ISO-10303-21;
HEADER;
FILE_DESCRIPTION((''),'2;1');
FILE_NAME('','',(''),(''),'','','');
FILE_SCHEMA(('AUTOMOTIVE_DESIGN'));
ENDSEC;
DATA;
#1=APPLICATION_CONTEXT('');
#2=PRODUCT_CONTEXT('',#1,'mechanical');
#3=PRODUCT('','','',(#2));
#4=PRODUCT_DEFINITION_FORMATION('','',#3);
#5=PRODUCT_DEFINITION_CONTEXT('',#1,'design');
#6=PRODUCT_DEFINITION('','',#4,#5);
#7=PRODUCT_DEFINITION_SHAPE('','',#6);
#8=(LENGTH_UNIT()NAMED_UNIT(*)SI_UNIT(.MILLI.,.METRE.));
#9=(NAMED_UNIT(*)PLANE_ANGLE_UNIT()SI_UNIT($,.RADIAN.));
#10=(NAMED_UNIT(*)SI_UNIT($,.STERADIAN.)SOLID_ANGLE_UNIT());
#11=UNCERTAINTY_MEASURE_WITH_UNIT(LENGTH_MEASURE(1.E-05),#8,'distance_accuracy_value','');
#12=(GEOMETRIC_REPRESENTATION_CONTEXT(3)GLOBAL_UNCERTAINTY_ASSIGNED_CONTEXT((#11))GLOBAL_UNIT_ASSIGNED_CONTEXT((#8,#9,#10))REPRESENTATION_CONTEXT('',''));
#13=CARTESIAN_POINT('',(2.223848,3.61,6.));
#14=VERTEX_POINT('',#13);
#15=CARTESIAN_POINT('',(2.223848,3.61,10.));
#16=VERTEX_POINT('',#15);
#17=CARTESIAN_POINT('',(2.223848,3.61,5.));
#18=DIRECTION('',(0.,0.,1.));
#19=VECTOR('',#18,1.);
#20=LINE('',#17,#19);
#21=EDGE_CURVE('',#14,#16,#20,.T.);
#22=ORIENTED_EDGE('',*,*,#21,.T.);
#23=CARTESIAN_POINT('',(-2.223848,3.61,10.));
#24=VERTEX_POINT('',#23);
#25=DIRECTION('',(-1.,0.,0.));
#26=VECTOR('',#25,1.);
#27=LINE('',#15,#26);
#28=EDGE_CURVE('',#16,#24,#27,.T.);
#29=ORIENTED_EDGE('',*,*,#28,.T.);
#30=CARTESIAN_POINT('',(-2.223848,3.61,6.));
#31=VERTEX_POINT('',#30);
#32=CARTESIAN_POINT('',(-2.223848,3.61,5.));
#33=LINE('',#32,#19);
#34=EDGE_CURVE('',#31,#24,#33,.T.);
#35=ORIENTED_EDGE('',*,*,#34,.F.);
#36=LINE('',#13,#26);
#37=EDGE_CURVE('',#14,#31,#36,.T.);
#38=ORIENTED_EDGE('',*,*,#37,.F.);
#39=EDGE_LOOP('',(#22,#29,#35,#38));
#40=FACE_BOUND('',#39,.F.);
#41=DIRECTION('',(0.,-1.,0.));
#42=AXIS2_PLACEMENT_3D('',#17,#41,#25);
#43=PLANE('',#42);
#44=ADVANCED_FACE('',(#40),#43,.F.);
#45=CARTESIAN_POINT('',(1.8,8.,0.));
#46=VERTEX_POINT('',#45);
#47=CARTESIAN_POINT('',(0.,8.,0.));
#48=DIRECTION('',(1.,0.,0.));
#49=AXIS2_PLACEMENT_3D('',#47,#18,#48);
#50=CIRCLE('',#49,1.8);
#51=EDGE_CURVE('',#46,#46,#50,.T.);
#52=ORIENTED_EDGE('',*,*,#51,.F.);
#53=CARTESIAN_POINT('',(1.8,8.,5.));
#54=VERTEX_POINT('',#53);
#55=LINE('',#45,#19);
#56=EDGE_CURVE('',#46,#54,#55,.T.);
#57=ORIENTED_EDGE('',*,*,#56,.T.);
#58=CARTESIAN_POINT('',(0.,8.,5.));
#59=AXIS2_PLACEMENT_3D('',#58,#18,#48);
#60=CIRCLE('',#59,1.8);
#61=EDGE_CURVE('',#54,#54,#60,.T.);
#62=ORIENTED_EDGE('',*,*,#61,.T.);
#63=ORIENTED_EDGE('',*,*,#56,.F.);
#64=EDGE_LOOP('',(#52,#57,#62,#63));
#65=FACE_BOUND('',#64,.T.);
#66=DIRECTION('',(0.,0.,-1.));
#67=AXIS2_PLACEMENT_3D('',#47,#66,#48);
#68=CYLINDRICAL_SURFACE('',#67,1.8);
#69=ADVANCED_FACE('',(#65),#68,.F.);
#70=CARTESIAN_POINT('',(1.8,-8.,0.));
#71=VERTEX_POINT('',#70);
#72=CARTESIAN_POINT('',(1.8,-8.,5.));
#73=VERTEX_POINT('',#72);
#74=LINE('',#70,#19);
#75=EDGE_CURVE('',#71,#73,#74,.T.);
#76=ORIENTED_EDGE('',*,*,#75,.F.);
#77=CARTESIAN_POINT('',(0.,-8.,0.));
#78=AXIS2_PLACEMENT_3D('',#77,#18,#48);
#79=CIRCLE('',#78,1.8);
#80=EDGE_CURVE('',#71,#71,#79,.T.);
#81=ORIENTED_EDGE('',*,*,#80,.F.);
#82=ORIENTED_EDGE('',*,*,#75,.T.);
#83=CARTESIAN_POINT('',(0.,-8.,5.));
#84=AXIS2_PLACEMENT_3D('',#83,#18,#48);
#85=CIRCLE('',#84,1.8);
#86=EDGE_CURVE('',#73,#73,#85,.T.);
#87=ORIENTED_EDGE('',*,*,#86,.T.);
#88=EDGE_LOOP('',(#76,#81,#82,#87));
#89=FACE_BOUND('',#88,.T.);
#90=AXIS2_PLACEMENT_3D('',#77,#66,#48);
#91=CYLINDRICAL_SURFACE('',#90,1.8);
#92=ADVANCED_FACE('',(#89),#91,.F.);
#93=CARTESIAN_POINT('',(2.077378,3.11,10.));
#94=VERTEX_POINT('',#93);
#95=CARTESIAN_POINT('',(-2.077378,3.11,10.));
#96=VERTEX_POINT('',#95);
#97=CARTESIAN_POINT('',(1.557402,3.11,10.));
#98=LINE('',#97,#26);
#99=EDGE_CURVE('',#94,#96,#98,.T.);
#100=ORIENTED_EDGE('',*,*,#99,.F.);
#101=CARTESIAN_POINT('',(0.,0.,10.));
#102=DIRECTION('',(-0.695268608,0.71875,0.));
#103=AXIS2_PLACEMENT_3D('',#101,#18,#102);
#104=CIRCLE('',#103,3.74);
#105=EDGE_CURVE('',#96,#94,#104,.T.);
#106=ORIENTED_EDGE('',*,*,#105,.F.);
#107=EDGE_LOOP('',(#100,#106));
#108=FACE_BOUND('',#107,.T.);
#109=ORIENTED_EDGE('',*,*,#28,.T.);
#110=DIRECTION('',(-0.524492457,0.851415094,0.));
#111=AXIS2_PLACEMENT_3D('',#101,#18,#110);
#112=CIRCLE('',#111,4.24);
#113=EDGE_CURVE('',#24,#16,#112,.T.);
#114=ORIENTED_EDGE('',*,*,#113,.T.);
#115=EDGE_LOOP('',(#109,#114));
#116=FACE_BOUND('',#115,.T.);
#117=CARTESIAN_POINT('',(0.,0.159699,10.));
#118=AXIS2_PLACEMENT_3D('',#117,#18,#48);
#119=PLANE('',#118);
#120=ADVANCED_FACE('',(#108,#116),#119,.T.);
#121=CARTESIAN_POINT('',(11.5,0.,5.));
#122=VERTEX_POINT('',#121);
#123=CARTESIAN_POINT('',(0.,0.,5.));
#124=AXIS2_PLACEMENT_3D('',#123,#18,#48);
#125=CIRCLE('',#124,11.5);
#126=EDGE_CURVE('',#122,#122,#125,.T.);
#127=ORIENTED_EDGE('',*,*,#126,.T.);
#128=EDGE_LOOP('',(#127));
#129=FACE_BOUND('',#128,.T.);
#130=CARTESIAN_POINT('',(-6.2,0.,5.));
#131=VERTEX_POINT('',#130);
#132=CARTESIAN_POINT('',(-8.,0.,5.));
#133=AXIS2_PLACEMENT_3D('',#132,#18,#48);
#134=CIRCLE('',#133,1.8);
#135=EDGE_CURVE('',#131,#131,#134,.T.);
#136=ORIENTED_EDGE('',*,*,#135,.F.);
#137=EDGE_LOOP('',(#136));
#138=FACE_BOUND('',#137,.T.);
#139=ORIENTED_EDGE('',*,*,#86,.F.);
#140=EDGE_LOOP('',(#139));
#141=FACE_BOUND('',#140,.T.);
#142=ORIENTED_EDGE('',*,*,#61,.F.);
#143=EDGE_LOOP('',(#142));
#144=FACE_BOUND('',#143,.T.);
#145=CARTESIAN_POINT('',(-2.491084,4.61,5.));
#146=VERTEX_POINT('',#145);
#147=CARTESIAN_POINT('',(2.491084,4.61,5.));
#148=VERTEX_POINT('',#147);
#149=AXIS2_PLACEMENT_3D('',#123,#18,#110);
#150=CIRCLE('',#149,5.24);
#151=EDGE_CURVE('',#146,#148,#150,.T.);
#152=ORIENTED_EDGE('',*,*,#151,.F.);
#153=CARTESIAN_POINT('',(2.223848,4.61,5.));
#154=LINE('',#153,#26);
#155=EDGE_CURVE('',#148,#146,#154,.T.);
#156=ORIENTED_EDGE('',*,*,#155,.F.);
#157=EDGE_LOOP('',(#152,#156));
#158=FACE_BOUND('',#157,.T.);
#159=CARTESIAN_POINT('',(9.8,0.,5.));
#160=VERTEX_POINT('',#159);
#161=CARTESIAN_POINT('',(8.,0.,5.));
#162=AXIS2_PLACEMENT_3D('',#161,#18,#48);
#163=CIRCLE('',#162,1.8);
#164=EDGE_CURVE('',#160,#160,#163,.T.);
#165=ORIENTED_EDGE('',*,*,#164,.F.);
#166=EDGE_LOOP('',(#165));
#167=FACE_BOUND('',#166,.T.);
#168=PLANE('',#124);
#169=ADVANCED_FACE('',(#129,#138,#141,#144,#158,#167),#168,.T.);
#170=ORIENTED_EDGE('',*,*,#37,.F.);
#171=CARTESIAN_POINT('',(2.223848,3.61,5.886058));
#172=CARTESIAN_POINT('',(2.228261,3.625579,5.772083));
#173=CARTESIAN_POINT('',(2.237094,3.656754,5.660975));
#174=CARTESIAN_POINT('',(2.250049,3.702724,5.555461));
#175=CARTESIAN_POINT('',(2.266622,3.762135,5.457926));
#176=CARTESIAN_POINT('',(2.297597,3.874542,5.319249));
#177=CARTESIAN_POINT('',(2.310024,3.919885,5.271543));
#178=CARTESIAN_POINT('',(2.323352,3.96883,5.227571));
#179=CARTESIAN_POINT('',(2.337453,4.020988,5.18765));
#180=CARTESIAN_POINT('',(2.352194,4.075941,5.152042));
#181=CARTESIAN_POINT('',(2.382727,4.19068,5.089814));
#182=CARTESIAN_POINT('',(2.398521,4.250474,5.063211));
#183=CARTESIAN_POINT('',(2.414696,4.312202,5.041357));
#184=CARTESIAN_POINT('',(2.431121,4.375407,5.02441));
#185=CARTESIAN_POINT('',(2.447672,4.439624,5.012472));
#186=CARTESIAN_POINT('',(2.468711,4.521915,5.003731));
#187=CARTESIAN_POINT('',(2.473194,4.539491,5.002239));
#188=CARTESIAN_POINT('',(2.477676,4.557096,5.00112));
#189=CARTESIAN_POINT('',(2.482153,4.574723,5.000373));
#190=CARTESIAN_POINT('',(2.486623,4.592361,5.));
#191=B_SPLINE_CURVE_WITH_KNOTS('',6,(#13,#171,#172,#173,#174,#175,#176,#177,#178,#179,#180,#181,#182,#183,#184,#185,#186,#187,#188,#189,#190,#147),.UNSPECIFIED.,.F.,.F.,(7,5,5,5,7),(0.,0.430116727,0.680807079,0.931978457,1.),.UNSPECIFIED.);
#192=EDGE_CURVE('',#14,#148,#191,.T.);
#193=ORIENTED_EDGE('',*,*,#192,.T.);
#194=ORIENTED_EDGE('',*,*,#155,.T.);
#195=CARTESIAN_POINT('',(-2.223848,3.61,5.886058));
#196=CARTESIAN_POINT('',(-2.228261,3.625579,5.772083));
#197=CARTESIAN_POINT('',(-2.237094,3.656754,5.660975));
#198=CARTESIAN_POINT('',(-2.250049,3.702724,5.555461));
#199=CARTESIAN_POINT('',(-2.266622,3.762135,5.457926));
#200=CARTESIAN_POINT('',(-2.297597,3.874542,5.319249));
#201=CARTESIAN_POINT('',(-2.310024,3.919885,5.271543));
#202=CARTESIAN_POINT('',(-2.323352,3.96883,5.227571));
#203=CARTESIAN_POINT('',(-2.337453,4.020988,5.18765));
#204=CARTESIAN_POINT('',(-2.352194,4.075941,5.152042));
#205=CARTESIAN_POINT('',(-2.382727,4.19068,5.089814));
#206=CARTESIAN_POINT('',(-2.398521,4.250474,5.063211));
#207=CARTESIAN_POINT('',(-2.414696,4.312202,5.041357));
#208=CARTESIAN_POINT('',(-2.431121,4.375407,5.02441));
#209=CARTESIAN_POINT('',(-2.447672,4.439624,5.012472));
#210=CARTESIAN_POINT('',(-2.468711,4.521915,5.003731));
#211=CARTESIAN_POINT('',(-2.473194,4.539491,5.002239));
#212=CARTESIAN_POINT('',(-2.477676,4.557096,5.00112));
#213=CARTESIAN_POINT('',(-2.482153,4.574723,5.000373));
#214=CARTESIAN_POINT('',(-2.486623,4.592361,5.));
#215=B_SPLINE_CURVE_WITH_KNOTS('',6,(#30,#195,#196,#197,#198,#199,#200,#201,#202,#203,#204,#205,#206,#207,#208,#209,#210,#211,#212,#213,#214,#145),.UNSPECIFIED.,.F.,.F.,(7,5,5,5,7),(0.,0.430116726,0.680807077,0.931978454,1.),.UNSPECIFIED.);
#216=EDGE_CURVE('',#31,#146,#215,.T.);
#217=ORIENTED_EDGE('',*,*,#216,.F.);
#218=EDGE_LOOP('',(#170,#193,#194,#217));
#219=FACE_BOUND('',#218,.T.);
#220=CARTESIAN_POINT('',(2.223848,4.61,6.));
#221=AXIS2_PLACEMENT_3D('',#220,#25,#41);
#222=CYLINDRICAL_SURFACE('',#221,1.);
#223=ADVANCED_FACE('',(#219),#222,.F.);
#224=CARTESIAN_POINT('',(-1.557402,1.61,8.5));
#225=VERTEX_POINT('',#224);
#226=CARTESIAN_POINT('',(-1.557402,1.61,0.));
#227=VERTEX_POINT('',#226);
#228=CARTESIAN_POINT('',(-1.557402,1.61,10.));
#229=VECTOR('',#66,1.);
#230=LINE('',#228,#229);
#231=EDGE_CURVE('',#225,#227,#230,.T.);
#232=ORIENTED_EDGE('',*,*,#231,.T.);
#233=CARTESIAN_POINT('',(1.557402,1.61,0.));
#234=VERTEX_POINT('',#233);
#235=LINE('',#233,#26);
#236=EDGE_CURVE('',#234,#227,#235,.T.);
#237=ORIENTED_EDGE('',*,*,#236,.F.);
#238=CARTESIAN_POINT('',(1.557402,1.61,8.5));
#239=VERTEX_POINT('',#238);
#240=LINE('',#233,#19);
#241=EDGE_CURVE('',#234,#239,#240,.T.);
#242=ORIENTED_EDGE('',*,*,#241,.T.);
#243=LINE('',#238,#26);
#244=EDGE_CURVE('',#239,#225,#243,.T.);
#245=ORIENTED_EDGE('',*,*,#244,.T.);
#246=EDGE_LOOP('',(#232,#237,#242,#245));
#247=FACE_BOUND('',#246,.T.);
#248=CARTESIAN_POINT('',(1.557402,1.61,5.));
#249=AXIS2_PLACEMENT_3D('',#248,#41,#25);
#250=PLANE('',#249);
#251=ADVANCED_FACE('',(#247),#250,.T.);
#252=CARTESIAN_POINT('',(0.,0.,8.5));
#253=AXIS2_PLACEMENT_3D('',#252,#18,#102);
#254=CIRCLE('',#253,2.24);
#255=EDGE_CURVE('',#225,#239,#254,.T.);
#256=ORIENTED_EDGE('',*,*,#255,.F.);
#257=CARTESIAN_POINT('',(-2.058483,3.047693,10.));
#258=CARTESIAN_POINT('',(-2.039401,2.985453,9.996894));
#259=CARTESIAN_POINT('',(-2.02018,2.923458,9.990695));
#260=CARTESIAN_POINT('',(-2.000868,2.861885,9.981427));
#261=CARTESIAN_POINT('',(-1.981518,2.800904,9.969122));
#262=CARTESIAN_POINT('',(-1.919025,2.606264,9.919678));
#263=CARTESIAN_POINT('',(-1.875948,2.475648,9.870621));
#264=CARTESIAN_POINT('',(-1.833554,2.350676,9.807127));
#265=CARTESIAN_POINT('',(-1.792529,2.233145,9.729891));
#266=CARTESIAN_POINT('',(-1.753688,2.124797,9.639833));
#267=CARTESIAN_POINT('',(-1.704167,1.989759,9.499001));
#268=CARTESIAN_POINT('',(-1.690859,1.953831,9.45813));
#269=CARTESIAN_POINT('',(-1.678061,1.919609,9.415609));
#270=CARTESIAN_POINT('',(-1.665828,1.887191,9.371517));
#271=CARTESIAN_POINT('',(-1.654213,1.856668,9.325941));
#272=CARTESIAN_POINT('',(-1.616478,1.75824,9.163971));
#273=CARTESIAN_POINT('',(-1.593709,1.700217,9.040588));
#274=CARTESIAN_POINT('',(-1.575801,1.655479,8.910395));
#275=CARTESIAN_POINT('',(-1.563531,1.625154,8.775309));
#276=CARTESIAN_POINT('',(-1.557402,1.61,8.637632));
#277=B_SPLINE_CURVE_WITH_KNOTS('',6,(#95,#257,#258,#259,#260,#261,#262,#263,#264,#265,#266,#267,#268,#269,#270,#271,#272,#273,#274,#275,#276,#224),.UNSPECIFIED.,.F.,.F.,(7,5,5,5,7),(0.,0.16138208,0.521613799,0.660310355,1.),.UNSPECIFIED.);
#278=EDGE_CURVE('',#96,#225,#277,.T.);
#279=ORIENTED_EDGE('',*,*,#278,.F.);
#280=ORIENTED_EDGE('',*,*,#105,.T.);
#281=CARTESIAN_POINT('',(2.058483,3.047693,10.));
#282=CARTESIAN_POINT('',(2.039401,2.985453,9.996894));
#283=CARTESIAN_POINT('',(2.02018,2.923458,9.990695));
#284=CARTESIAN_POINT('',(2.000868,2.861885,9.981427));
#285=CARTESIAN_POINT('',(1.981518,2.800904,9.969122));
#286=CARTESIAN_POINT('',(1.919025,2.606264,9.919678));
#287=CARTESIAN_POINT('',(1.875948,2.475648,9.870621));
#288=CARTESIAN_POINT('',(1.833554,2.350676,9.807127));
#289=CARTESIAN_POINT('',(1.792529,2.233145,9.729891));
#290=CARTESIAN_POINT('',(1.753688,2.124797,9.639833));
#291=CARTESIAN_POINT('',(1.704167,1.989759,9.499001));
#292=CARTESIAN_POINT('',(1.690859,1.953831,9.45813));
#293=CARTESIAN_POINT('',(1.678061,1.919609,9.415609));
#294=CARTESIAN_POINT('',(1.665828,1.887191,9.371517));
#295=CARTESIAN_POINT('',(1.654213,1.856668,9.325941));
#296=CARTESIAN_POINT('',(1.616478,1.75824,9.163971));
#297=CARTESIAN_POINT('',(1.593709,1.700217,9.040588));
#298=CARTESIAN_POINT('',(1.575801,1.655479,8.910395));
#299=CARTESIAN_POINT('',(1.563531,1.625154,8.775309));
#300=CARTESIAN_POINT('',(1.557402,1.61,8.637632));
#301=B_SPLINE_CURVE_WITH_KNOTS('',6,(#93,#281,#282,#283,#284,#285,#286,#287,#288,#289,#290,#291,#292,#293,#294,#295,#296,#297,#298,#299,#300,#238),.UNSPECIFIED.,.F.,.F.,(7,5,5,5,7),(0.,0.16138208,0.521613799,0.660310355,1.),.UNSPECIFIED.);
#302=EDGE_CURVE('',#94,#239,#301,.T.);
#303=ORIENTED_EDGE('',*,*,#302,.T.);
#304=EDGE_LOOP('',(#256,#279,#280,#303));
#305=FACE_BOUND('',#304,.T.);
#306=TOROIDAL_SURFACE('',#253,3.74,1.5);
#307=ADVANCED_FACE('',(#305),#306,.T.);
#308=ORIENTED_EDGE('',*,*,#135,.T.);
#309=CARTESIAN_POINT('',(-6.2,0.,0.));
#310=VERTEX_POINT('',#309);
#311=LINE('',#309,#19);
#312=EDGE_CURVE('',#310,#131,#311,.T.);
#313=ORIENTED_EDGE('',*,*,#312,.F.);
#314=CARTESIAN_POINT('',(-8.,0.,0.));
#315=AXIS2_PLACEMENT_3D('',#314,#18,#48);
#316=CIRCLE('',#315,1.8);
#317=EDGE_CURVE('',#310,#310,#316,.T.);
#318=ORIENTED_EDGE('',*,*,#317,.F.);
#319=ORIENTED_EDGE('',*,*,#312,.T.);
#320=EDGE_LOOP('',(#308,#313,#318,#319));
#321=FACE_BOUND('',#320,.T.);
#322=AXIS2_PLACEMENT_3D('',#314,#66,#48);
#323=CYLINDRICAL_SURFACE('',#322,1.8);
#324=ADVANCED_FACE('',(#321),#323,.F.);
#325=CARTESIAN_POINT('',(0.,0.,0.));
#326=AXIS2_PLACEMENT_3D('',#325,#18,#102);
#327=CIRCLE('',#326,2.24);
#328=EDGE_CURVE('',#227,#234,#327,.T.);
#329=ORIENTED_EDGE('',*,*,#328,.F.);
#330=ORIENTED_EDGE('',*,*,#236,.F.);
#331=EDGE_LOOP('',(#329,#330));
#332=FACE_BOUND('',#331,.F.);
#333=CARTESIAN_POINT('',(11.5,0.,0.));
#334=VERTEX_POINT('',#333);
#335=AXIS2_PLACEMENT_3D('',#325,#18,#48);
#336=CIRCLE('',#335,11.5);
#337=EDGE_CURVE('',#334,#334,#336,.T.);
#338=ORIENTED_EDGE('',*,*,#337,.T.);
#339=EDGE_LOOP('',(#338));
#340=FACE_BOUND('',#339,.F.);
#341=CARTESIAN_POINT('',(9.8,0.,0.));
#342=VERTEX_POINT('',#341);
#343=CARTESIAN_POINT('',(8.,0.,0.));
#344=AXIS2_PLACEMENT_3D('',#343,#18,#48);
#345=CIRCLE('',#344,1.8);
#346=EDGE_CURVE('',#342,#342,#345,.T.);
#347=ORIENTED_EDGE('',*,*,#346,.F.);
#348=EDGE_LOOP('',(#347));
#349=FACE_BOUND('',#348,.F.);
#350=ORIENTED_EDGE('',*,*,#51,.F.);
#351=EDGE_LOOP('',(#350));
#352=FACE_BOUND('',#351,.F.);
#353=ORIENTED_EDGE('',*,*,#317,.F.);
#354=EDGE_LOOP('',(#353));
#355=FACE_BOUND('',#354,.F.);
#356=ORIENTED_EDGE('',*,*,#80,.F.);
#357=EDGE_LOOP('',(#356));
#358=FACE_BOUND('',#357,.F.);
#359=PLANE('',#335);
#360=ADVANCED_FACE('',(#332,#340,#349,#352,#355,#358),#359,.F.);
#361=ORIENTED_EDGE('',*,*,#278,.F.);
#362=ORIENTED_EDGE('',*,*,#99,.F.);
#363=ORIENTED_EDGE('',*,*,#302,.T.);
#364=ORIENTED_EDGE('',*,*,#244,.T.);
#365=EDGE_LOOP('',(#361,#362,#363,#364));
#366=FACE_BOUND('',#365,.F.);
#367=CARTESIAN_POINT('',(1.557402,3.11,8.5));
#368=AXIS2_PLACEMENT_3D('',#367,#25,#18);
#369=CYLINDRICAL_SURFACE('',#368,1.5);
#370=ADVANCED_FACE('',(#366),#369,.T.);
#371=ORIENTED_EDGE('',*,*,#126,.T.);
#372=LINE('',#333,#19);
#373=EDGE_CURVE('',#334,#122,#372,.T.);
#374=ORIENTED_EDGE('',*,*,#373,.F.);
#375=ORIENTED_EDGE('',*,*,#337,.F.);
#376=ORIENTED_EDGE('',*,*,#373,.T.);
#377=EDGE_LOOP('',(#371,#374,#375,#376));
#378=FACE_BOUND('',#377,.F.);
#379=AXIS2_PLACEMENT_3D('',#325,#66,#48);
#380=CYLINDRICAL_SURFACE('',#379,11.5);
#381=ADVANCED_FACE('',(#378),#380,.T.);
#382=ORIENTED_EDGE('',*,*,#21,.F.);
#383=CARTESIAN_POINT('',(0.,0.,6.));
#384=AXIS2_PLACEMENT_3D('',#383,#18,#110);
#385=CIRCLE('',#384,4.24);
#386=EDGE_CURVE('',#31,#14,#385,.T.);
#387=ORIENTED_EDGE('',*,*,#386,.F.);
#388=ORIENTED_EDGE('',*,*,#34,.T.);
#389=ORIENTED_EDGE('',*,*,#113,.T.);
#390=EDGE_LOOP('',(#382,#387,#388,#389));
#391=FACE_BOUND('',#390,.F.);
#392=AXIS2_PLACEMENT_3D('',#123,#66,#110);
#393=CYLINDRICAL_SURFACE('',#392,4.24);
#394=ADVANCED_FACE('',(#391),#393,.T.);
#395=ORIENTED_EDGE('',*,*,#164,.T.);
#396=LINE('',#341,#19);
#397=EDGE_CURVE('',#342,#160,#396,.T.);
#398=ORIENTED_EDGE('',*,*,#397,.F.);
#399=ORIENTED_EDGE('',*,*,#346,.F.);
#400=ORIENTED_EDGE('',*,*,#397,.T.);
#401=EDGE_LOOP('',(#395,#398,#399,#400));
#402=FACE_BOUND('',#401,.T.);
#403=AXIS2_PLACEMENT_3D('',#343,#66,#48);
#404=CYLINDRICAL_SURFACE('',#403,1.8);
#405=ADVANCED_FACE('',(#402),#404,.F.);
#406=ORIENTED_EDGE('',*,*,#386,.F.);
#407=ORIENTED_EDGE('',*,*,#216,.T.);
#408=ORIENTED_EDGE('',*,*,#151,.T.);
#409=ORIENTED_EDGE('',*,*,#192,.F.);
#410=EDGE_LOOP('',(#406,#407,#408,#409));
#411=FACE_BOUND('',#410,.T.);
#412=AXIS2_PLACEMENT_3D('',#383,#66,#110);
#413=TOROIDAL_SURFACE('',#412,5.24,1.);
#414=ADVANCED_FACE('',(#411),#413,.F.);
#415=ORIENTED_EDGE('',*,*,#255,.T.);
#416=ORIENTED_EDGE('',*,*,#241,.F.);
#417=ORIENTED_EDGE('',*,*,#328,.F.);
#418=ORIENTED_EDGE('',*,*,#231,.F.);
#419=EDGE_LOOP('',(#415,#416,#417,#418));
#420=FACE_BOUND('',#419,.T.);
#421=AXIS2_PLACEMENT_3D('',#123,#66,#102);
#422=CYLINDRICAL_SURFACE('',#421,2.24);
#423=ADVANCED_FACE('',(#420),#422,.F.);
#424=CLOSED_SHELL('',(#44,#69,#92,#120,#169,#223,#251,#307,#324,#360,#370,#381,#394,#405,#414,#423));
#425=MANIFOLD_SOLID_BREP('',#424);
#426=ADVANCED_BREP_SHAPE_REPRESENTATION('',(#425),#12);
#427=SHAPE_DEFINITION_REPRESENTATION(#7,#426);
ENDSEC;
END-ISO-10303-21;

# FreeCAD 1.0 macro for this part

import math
import FreeCAD as App
import Part
import Sketcher
from FreeCAD import Vector


def edges_at(feature, points):
    """Names of the edges that pass closest to the given points."""
    edges = feature.Shape.Edges
    near = lambda p: min(range(len(edges)), key=lambda i: edges[i].distToShape(Part.Vertex(*p))[0])
    return sorted({f"Edge{near(p) + 1}" for p in points})

doc = App.newDocument("Part")
body = doc.addObject("PartDesign::Body", "Body")

sketch1 = body.newObject("Sketcher::SketchObject", "Sketch")
sketch1.AttachmentSupport = (doc.getObject("XY_Plane"), [""])
sketch1.MapMode = "FlatFace"
sketch1.addGeometry([
    Part.Circle(Vector(0, 0, 0), Vector(0, 0, 1), 11.5),
    Part.Circle(Vector(0, -8, 0), Vector(0, 0, 1), 1.8),
    Part.LineSegment(Vector(-1.6, 1.6, 0), Vector(1.6, 1.6, 0)),
    Part.ArcOfCircle(Part.Circle(Vector(0, 0, 0), Vector(0, 0, 1), 2.2), math.radians(134), math.radians(406)),
    Part.Circle(Vector(-8, 0, 0), Vector(0, 0, 1), 1.8),
    Part.Circle(Vector(0, 8, 0), Vector(0, 0, 1), 1.8),
    Part.Circle(Vector(8, 0, 0), Vector(0, 0, 1), 1.8),
], False)
sketch1.addConstraint([
    Sketcher.Constraint("Coincident", 2, 1, 3, 1),
    Sketcher.Constraint("Coincident", 3, 2, 2, 2),
    Sketcher.Constraint("Horizontal", 2),
    Sketcher.Constraint("Coincident", 0, 3, -1, 1),
    Sketcher.Constraint("Coincident", 3, 3, -1, 1),
    Sketcher.Constraint("Equal", 1, 4),
    Sketcher.Constraint("Equal", 4, 5),
    Sketcher.Constraint("Equal", 5, 6),
    Sketcher.Constraint("Symmetric", 1, 3, 5, 3, -1, 1),
    Sketcher.Constraint("Symmetric", 4, 3, 6, 3, -1, 1),
    Sketcher.Constraint("PointOnObject", 1, 3, -2),
    Sketcher.Constraint("PointOnObject", 4, 3, -1),
    Sketcher.Constraint("Diameter", 0, 23.0),
    Sketcher.Constraint("Diameter", 1, 3.6),
    Sketcher.Constraint("Radius", 3, 2.24),
    Sketcher.Constraint("DistanceY", 1, 3, -1, 1, 8.0),
    Sketcher.Constraint("DistanceX", 4, 3, -1, 1, 8.0),
    Sketcher.Constraint("DistanceY", -1, 1, 2, 1, 1.61),
])
pad1 = body.newObject("PartDesign::Pad", "Pad")
pad1.Profile = sketch1
pad1.Length = 5

sketch2 = body.newObject("Sketcher::SketchObject", "Sketch001")
sketch2.AttachmentSupport = (doc.getObject("XY_Plane"), [""])
sketch2.MapMode = "FlatFace"
sketch2.AttachmentOffset = App.Placement(Vector(0, 0, 5), App.Rotation())
sketch2.addGeometry([
    Part.LineSegment(Vector(2.2, 3.6, 0), Vector(-2.2, 3.6, 0)),
    Part.ArcOfCircle(Part.Circle(Vector(0, 0, 0), Vector(0, 0, 1), 4.2), math.radians(122), math.radians(418)),
    Part.LineSegment(Vector(-1.6, 1.6, 0), Vector(1.6, 1.6, 0)),
    Part.ArcOfCircle(Part.Circle(Vector(0, 0, 0), Vector(0, 0, 1), 2.2), math.radians(134), math.radians(406)),
], False)
sketch2.addConstraint([
    Sketcher.Constraint("Coincident", 0, 1, 1, 2),
    Sketcher.Constraint("Coincident", 1, 1, 0, 2),
    Sketcher.Constraint("Coincident", 2, 1, 3, 1),
    Sketcher.Constraint("Coincident", 3, 2, 2, 2),
    Sketcher.Constraint("Horizontal", 0),
    Sketcher.Constraint("Horizontal", 2),
    Sketcher.Constraint("Coincident", 1, 3, -1, 1),
    Sketcher.Constraint("Coincident", 3, 3, -1, 1),
    Sketcher.Constraint("Radius", 1, 4.24),
    Sketcher.Constraint("Radius", 3, 2.24),
    Sketcher.Constraint("DistanceY", 2, 1, 1, 1, 2.0),
    Sketcher.Constraint("DistanceY", -1, 1, 0, 1, 3.61),
])
pad2 = body.newObject("PartDesign::Pad", "Pad001")
pad2.Profile = sketch2
pad2.Length = 5
doc.recompute()

fillet = body.newObject("PartDesign::Fillet", "Fillet")
fillet.Base = (pad2, edges_at(pad2, [(0, 3.61, 5), (0, -4.24, 5)]))
fillet.Radius = 1
doc.recompute()

fillet2 = body.newObject("PartDesign::Fillet", "Fillet001")
fillet2.Base = (fillet, edges_at(fillet, [(0, 1.61, 10), (0, -2.24, 10)]))
fillet2.Radius = 1.5

doc.recompute()
